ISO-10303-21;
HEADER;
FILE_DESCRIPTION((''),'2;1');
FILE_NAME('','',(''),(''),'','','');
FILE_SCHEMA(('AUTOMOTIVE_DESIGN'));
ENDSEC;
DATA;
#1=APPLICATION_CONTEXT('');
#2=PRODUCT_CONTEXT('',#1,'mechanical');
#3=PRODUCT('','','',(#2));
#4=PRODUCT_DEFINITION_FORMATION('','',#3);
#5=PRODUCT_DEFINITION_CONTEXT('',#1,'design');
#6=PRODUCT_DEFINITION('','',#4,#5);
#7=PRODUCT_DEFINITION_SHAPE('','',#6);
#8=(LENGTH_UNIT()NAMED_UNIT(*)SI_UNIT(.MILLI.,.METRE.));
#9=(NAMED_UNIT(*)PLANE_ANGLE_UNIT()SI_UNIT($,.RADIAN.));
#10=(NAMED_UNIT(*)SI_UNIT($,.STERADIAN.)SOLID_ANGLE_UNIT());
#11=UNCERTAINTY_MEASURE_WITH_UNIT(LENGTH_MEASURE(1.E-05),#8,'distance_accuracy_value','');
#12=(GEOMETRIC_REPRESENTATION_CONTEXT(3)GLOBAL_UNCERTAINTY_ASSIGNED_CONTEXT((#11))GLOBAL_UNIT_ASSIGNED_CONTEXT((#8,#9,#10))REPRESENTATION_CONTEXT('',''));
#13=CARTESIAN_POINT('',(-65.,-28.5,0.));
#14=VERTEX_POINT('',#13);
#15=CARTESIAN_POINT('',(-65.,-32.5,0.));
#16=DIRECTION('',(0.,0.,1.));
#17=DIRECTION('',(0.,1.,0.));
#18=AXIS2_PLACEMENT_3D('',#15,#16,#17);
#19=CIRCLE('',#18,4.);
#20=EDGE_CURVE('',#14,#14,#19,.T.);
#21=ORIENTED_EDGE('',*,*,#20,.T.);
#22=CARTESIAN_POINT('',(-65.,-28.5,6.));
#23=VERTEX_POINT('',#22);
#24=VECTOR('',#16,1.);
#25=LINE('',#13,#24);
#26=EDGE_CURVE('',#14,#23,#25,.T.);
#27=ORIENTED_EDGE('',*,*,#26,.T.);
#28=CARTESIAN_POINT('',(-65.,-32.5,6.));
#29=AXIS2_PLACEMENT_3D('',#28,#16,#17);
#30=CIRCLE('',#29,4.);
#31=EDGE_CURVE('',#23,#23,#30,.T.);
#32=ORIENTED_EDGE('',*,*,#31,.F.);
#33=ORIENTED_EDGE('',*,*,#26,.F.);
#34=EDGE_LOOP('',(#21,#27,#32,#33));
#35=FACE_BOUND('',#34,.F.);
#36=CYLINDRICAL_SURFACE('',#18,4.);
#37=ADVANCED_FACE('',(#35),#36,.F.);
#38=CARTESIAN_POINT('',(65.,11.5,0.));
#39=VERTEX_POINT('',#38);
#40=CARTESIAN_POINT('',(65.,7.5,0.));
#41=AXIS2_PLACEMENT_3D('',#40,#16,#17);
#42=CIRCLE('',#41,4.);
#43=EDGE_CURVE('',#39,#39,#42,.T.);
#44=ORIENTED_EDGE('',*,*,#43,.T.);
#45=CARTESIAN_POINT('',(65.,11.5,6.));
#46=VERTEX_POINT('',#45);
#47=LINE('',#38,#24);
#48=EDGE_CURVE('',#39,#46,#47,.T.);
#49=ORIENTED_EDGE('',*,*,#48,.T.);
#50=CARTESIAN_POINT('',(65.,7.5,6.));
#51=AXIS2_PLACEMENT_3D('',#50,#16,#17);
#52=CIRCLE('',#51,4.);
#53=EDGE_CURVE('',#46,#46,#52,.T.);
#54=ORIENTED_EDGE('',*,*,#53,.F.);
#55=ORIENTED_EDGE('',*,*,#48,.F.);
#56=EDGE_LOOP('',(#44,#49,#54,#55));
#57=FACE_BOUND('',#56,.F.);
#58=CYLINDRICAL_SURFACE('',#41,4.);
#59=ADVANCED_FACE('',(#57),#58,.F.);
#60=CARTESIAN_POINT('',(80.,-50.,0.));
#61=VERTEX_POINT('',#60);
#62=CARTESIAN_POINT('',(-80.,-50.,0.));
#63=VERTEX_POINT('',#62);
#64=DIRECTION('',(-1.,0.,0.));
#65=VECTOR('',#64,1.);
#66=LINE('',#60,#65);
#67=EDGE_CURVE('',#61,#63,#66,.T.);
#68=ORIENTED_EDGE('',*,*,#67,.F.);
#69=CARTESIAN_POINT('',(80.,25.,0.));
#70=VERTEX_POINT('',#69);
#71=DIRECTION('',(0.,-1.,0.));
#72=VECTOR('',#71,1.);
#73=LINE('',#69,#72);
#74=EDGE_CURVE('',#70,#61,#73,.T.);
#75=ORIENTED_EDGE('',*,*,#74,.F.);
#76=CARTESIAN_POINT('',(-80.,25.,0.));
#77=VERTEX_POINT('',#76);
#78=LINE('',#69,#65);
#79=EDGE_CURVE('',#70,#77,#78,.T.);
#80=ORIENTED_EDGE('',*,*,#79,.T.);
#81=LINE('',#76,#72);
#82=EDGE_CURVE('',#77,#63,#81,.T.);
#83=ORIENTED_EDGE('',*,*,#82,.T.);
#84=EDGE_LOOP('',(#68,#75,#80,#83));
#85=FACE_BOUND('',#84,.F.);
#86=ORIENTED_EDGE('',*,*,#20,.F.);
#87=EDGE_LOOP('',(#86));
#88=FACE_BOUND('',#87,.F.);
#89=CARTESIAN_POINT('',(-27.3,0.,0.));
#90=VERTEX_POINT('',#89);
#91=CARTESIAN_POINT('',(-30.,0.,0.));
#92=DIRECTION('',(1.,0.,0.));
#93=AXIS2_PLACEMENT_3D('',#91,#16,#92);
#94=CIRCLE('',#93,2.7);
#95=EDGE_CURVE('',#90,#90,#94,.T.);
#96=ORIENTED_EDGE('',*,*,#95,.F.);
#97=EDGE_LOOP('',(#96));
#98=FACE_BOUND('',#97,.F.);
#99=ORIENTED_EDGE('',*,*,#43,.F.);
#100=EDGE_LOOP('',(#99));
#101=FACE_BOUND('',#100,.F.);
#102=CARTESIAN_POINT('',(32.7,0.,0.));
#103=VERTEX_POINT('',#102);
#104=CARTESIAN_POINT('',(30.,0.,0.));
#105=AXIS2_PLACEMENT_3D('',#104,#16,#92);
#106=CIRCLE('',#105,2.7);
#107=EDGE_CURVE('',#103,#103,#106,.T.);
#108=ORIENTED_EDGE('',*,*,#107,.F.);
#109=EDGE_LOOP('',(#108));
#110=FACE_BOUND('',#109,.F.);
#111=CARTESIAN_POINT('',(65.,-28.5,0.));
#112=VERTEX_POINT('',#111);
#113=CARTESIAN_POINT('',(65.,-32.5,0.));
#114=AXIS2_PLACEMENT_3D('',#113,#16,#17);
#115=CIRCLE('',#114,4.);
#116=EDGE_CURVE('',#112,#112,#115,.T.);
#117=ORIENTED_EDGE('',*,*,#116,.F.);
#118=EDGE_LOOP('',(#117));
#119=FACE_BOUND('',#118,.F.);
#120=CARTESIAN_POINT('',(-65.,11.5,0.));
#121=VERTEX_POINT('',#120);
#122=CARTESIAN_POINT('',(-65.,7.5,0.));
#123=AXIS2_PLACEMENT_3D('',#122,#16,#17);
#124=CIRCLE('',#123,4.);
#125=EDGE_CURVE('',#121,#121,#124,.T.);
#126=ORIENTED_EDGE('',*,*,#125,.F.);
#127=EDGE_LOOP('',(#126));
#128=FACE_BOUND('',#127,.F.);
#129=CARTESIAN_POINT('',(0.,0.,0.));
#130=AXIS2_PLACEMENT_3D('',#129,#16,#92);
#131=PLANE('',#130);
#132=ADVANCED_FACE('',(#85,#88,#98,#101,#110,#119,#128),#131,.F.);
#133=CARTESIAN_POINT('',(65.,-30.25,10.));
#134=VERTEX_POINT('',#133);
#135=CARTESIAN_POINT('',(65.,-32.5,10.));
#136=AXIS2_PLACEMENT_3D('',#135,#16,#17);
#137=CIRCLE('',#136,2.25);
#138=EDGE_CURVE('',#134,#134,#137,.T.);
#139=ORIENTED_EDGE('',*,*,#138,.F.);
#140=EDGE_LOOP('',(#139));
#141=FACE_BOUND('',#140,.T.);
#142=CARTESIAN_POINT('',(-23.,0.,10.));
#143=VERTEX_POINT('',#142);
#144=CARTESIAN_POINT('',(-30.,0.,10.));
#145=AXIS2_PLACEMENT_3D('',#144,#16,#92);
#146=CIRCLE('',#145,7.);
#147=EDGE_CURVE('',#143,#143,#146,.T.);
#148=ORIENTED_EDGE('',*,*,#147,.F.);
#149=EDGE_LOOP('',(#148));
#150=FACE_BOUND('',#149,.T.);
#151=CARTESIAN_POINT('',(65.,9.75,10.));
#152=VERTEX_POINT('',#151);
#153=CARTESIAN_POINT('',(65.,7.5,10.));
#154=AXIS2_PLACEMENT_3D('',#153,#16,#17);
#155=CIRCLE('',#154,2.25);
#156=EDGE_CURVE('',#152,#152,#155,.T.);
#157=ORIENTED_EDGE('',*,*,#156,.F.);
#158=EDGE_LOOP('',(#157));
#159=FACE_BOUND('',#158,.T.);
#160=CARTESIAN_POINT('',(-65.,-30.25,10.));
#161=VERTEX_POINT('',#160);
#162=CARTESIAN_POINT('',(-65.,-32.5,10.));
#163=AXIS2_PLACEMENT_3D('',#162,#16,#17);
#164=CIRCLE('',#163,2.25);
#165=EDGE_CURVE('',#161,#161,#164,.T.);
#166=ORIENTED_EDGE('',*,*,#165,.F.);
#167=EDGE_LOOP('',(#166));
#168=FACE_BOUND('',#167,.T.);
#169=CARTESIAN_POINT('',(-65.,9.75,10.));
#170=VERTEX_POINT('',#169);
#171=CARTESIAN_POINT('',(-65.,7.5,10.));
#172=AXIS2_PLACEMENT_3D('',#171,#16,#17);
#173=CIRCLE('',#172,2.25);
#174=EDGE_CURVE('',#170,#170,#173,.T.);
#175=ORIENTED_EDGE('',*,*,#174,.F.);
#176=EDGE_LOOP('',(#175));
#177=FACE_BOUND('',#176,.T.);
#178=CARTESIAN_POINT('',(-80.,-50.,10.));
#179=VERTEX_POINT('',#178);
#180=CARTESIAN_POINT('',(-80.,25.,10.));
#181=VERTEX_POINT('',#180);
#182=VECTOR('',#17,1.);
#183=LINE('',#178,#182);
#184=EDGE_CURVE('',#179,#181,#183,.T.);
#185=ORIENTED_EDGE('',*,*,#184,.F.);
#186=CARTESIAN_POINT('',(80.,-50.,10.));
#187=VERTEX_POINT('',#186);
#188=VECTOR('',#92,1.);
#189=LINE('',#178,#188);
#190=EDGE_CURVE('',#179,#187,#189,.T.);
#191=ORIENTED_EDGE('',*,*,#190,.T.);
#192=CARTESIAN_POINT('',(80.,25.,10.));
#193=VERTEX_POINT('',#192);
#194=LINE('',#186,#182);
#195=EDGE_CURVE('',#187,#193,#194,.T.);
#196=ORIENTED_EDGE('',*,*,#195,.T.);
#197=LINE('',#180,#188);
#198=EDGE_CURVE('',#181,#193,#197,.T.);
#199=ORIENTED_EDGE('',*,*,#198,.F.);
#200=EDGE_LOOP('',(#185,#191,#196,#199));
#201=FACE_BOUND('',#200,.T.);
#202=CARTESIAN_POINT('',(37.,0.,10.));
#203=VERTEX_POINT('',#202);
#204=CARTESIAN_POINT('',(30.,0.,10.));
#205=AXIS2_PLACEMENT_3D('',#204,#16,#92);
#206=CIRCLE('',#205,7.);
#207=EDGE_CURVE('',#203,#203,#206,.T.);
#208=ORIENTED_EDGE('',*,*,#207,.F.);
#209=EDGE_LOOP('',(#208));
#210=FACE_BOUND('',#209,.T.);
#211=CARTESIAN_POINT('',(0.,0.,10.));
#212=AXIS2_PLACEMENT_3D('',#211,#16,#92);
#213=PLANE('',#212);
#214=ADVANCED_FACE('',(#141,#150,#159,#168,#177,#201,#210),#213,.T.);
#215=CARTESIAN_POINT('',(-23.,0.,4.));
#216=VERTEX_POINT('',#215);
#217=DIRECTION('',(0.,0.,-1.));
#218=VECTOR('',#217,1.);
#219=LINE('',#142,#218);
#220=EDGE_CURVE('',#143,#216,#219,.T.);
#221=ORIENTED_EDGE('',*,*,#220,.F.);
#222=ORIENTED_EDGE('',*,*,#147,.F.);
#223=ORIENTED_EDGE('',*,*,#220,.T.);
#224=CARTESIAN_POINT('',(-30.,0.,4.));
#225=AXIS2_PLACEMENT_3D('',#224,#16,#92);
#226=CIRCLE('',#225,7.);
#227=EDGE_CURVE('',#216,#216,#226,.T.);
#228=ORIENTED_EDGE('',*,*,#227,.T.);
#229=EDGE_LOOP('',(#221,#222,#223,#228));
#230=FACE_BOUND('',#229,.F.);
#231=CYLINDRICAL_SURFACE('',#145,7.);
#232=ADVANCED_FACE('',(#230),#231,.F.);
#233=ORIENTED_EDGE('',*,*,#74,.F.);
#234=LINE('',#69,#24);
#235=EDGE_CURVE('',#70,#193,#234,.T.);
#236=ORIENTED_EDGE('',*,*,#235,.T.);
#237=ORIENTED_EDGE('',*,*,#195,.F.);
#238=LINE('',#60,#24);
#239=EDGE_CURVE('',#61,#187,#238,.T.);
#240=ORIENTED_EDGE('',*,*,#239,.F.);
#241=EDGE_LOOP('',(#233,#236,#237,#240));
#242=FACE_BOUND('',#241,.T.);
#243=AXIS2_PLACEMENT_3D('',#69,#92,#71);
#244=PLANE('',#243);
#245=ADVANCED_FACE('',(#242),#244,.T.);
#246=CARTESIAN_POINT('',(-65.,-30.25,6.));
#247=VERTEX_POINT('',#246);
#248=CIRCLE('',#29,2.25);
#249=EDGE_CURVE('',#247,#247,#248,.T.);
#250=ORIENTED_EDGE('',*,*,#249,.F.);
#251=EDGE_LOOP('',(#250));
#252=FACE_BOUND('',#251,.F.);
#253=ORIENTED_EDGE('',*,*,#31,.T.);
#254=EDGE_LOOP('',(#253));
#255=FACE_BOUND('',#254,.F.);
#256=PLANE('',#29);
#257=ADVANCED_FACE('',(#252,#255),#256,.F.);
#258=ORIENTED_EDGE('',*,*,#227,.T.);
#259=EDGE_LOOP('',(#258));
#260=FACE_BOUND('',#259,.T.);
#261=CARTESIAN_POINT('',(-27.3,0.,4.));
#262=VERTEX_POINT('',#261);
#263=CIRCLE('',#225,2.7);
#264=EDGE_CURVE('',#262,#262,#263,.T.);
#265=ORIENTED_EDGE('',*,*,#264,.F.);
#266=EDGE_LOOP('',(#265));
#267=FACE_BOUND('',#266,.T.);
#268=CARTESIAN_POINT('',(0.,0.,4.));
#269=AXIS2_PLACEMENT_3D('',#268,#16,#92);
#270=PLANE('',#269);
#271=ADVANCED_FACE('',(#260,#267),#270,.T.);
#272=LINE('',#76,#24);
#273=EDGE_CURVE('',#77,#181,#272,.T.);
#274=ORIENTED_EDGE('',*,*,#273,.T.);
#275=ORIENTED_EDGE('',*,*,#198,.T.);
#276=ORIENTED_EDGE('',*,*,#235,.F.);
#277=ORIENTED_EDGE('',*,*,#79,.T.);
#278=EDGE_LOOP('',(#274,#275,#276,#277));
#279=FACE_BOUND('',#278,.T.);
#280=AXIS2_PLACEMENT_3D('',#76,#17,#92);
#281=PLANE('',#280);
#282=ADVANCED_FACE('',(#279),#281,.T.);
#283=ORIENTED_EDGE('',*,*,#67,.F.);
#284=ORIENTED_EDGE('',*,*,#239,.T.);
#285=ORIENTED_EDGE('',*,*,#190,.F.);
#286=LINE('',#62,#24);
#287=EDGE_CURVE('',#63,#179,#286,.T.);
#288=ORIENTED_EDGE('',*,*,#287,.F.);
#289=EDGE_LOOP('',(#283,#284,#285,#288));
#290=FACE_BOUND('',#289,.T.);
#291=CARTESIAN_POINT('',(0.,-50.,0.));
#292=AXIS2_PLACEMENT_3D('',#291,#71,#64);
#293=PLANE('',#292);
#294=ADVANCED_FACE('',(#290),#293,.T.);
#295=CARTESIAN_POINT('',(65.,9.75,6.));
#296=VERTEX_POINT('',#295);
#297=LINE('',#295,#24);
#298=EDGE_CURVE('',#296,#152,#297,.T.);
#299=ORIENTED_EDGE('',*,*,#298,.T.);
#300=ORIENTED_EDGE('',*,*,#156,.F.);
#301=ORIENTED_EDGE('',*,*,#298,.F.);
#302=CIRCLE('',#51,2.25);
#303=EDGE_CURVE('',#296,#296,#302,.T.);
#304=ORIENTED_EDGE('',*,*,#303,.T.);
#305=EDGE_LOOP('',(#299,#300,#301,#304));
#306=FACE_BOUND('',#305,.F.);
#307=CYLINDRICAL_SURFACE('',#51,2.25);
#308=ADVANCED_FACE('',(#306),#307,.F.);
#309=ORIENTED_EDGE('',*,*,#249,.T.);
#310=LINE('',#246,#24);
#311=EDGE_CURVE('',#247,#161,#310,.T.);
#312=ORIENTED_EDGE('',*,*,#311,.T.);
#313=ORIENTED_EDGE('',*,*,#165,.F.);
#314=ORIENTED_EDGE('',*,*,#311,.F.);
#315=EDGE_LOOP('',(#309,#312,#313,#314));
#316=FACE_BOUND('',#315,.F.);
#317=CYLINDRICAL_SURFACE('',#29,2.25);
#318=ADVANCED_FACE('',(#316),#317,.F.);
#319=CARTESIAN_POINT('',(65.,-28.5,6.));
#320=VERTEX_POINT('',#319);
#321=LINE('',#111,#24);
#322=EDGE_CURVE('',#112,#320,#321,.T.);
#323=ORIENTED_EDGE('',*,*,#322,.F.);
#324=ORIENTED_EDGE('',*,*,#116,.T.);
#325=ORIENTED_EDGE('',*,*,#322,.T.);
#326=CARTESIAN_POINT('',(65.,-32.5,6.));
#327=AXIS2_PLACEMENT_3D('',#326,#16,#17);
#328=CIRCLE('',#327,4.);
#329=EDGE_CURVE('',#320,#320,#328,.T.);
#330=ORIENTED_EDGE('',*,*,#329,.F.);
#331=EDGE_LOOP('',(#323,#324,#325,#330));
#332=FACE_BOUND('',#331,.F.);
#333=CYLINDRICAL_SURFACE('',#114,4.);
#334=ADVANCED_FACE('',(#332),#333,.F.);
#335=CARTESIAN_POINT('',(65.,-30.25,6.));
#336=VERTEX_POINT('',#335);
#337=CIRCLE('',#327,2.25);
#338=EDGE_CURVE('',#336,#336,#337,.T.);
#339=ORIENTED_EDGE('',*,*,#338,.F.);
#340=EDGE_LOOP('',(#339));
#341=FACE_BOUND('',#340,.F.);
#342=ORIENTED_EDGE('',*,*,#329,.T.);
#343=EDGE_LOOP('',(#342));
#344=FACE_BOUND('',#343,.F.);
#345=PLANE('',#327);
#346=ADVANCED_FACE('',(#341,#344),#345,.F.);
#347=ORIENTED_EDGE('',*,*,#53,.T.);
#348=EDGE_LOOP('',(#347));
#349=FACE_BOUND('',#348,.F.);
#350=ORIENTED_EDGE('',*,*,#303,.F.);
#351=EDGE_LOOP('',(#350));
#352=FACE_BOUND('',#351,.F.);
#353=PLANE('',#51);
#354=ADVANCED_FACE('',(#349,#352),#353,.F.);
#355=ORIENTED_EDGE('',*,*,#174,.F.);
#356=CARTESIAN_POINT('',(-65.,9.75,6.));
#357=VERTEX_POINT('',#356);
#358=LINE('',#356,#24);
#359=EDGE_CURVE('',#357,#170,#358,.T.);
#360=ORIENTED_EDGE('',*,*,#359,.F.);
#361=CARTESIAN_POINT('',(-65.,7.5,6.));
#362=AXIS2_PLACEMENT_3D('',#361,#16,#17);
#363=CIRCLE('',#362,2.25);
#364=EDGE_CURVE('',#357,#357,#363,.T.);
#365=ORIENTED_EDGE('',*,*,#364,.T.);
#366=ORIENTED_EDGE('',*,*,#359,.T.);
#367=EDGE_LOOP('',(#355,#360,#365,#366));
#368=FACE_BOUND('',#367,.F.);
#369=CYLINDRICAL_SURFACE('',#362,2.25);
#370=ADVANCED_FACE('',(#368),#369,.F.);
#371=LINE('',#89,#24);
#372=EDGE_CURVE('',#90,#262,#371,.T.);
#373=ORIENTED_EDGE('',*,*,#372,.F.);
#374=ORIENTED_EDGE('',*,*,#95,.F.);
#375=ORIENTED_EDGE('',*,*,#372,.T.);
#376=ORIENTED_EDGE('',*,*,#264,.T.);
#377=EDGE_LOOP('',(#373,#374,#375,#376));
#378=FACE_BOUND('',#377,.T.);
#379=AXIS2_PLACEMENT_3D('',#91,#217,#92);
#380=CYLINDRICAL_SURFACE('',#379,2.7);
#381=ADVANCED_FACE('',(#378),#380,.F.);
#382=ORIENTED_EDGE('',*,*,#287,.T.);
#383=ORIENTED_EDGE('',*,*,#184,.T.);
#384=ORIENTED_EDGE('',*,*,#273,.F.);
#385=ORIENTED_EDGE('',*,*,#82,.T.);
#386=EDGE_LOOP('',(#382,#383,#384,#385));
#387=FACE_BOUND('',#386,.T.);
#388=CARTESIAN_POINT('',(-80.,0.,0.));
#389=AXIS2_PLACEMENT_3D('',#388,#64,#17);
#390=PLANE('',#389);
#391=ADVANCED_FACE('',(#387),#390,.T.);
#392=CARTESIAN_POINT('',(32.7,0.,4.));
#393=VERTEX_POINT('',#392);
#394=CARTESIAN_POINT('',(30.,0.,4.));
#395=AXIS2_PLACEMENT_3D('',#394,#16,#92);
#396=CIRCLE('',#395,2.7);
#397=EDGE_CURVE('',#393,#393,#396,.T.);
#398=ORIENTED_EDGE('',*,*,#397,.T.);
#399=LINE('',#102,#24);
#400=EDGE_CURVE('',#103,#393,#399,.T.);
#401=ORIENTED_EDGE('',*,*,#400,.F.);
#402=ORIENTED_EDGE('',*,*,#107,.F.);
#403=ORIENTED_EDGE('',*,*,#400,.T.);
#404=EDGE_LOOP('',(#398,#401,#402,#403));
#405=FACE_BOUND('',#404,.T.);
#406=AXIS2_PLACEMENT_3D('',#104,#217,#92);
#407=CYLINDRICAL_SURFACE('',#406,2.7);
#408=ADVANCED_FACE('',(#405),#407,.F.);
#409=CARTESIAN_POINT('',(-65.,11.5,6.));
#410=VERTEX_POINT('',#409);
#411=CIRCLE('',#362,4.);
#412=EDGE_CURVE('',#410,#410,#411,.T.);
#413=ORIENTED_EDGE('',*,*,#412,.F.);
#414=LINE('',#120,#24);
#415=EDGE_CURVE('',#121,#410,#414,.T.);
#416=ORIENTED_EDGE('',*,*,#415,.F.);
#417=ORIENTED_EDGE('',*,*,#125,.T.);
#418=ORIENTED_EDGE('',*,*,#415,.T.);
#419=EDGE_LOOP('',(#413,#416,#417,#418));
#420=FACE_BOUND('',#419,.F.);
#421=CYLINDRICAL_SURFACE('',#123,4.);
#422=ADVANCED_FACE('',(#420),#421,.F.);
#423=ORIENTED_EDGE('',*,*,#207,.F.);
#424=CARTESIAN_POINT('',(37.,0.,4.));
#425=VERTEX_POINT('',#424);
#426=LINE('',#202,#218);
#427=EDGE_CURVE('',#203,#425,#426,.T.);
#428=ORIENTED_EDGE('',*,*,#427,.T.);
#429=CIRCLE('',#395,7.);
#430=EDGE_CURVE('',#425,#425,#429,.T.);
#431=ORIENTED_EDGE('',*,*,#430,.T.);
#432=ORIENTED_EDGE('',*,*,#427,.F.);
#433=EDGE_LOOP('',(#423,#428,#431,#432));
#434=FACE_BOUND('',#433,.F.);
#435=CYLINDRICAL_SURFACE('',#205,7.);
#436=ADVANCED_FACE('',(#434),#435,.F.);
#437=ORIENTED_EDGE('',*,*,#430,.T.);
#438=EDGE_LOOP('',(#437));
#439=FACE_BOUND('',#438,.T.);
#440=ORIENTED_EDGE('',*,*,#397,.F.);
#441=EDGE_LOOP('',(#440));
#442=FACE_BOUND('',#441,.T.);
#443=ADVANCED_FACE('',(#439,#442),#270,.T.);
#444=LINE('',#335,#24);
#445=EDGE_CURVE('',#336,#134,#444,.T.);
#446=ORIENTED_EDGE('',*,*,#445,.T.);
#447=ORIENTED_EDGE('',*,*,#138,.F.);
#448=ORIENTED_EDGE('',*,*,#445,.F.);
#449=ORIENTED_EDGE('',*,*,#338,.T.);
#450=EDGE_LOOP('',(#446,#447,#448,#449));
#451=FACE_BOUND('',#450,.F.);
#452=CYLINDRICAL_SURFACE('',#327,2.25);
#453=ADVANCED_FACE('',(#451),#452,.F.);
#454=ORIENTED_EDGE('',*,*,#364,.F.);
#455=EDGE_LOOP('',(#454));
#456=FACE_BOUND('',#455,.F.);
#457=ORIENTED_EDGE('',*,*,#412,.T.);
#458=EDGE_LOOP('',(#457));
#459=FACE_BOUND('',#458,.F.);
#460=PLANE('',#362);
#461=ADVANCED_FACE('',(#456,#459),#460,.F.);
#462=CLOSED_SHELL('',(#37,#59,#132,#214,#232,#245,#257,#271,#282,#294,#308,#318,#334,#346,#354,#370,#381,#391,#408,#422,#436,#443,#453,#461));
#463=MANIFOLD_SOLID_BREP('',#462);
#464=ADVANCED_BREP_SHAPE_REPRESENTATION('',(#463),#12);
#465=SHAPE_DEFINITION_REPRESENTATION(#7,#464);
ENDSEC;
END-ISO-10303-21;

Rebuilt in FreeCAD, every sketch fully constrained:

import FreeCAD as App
import Part
import Sketcher

V = App.Vector
Q = App.Units.Quantity


def add_polygon(sketch, points):
    """Adds a closed chain of lines whose ends are joined by coincident constraints."""
    first, n = sketch.GeometryCount, len(points)
    for a, b in zip(points, points[1:] + points[:1]):
        sketch.addGeometry(Part.LineSegment(App.Vector(*a, 0), App.Vector(*b, 0)), False)
    for i in range(n):
        sketch.addConstraint(Sketcher.Constraint("Coincident", first + i, 2, first + (i + 1) % n, 1))

doc = App.newDocument("Part")
body = doc.addObject("PartDesign::Body", "Body")

sketch1 = body.newObject("Sketcher::SketchObject", "Sketch")
sketch1.AttachmentSupport = (doc.getObject("XY_Plane"), [""])
sketch1.MapMode = "FlatFace"
add_polygon(sketch1, [(-80, 25), (-80, -50), (80, -50), (80, 25)])
sketch1.addGeometry(Part.Circle(V(-30, 0, 0), V(0, 0, 1), 2.7), False)
sketch1.addGeometry(Part.Circle(V(30, 0, 0), V(0, 0, 1), 2.7), False)
sketch1.addConstraint([
    Sketcher.Constraint("Vertical", 0),
    Sketcher.Constraint("Horizontal", 1),
    Sketcher.Constraint("Vertical", 2),
    Sketcher.Constraint("Horizontal", 3),
    Sketcher.Constraint("Equal", 4, 5),
    Sketcher.Constraint("Symmetric", 4, 3, 5, 3, -1, 1),
    Sketcher.Constraint("PointOnObject", 4, 3, -1),
    Sketcher.Constraint("Diameter", 4, Q("5.4 mm")),
    Sketcher.Constraint("DistanceX", 1, 1, 1, 2, Q("160 mm")),
    Sketcher.Constraint("DistanceY", 0, 2, 0, 1, Q("75 mm")),
    Sketcher.Constraint("DistanceY", -1, 1, 2, 2, Q("25 mm")),
    Sketcher.Constraint("DistanceX", 4, 3, 5, 3, Q("60 mm")),
    Sketcher.Constraint("DistanceX", 0, 2, -1, 1, Q("80 mm")),
])
pad1 = body.newObject("PartDesign::Pad", "Pad")
pad1.Profile = sketch1
pad1.Length = 10

sketch2 = body.newObject("Sketcher::SketchObject", "Sketch001")
sketch2.AttachmentSupport = (doc.getObject("XY_Plane"), [""])
sketch2.MapMode = "FlatFace"
sketch2.AttachmentOffset = App.Placement(V(0, 0, 10), App.Rotation())
sketch2.addGeometry([
    Part.Circle(V(-30, 0, 0), V(0, 0, 1), 7),
    Part.Circle(V(-30, 0, 0), V(0, 0, 1), 2.7),
    Part.Circle(V(30, 0, 0), V(0, 0, 1), 7),
    Part.Circle(V(30, 0, 0), V(0, 0, 1), 2.7),
], False)
sketch2.addConstraint([
    Sketcher.Constraint("Coincident", 1, 3, 0, 3),
    Sketcher.Constraint("Coincident", 3, 3, 2, 3),
    Sketcher.Constraint("Equal", 0, 2),
    Sketcher.Constraint("Equal", 1, 3),
    Sketcher.Constraint("Symmetric", 0, 3, 2, 3, -1, 1),
    Sketcher.Constraint("PointOnObject", 0, 3, -1),
    Sketcher.Constraint("Diameter", 0, Q("14 mm")),
    Sketcher.Constraint("Diameter", 1, Q("5.4 mm")),
    Sketcher.Constraint("DistanceX", 0, 3, -1, 1, Q("30 mm")),
])
pocket1 = body.newObject("PartDesign::Pocket", "Pocket")
pocket1.Profile = sketch2
pocket1.Length = 6

sketch3 = body.newObject("Sketcher::SketchObject", "Sketch002")
sketch3.AttachmentSupport = (doc.getObject("XY_Plane"), [""])
sketch3.MapMode = "FlatFace"
sketch3.addGeometry([
    Part.Circle(V(65, 7.5, 0), V(0, 0, 1), 2.2),
    Part.Circle(V(65, -32.5, 0), V(0, 0, 1), 2.2),
    Part.Circle(V(-65, -32.5, 0), V(0, 0, 1), 2.2),
    Part.Circle(V(-65, 7.5, 0), V(0, 0, 1), 2.2),
], False)
sketch3.addConstraint([
    Sketcher.Constraint("Equal", 0, 1),
    Sketcher.Constraint("Equal", 1, 2),
    Sketcher.Constraint("Equal", 2, 3),
    Sketcher.Constraint("Symmetric", 1, 3, 2, 3, -2),
    Sketcher.Constraint("Symmetric", 0, 3, 3, 3, -2),
    Sketcher.Constraint("Vertical", 0, 3, 1, 3),
    Sketcher.Constraint("Diameter", 0, Q("4.5 mm")),
    Sketcher.Constraint("DistanceX", -1, 1, 0, 3, Q("65 mm")),
    Sketcher.Constraint("DistanceY", 1, 3, 0, 3, Q("40 mm")),
    Sketcher.Constraint("DistanceY", -1, 1, 0, 3, Q("7.5 mm")),
])
doc.recompute()
hole = body.newObject("PartDesign::Hole", "Hole")
hole.Profile = sketch3
hole.ThreadType = "None"
hole.Diameter = 4.5
hole.DepthType = "ThroughAll"
hole.HoleCutType = "Counterbore"
hole.HoleCutDiameter = 8
hole.HoleCutDepth = 6
hole.Reversed = True

doc.recompute()
